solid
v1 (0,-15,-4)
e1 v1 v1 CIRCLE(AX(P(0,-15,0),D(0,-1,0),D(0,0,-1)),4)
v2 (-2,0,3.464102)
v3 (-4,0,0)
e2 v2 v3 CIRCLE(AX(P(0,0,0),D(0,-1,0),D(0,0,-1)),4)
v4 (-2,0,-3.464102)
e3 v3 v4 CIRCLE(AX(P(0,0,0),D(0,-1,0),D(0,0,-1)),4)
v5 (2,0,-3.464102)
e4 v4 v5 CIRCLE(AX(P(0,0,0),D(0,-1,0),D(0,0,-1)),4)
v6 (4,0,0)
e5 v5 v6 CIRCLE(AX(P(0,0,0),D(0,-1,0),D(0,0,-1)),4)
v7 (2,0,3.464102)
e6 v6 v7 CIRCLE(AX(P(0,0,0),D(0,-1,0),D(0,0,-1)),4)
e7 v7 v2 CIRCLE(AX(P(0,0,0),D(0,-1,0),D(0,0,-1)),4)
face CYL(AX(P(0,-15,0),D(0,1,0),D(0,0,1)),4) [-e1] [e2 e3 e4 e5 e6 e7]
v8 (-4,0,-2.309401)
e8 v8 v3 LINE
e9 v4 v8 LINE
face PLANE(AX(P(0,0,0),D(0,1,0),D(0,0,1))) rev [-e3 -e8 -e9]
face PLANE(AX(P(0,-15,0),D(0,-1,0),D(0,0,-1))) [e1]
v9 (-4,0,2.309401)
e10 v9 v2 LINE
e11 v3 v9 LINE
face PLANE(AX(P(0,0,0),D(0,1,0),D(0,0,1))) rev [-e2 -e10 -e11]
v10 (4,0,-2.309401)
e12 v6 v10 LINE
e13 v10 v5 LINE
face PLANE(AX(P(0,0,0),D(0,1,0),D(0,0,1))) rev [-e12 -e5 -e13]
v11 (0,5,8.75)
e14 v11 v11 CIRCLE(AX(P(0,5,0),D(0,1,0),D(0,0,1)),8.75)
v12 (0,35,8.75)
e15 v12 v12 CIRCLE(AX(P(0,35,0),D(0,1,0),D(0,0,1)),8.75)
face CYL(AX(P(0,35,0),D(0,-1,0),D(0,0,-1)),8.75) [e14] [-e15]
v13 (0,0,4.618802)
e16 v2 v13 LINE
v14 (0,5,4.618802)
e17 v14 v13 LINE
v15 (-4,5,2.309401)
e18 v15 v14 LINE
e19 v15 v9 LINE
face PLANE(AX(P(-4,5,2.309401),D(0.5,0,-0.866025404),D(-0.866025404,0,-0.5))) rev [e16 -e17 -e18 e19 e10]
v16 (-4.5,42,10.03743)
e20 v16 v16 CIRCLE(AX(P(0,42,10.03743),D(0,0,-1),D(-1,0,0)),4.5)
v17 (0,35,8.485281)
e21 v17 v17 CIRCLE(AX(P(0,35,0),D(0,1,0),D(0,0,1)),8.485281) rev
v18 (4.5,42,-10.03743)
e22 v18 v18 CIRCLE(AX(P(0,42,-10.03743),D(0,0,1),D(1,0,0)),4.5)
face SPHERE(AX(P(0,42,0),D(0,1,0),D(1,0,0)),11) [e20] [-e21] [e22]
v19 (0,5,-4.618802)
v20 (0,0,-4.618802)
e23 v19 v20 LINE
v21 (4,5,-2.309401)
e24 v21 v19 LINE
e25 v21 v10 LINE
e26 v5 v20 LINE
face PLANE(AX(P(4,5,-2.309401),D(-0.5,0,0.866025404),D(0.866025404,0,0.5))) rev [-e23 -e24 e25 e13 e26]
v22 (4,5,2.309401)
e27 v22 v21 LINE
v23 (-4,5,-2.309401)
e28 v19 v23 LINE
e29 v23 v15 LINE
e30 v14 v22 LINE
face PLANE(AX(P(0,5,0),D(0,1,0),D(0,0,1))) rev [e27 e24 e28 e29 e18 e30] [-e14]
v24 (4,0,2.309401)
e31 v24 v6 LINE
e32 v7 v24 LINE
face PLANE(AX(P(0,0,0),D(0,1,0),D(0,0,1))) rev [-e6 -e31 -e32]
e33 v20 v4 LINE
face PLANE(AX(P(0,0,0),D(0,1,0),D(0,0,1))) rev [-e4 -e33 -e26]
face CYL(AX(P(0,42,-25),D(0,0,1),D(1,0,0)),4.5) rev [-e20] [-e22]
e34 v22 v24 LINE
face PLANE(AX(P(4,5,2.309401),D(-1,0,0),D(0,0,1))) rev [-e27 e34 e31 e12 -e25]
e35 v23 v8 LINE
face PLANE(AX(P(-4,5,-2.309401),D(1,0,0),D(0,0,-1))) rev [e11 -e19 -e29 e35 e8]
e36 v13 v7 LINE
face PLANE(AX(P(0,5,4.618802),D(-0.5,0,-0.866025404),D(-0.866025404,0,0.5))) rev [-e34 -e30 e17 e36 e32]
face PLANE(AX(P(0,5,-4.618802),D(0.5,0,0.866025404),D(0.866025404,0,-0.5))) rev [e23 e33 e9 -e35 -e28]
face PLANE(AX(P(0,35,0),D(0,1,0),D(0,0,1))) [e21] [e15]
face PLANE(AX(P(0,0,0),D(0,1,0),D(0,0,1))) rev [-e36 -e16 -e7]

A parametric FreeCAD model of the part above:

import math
import FreeCAD as App
import Part
import Sketcher
Q = App.Units.Quantity

doc = App.newDocument("Part")
body = doc.addObject("PartDesign::Body", "Body")

# Sketch on XZ plane
sketch1 = body.newObject("Sketcher::SketchObject", "Sketch")
sketch1.AttachmentSupport = (doc.getObject("XZ_Plane"), [""])
sketch1.MapMode = "FlatFace"
sketch1.addGeometry(Part.LineSegment(App.Vector(0, -4.6, 0), App.Vector(-4, -2.3, 0)), False)
sketch1.addGeometry(Part.LineSegment(App.Vector(-4, -2.3, 0), App.Vector(-4, 2.3, 0)), False)
sketch1.addGeometry(Part.LineSegment(App.Vector(-4, 2.3, 0), App.Vector(0, 4.6, 0)), False)
sketch1.addGeometry(Part.LineSegment(App.Vector(0, 4.6, 0), App.Vector(4, 2.3, 0)), False)
sketch1.addGeometry(Part.LineSegment(App.Vector(4, 2.3, 0), App.Vector(4, -2.3, 0)), False)
sketch1.addGeometry(Part.LineSegment(App.Vector(4, -2.3, 0), App.Vector(0, -4.6, 0)), False)
sketch1.addConstraint(Sketcher.Constraint("Coincident", 0, 2, 1, 1))
sketch1.addConstraint(Sketcher.Constraint("Coincident", 1, 2, 2, 1))
sketch1.addConstraint(Sketcher.Constraint("Coincident", 2, 2, 3, 1))
sketch1.addConstraint(Sketcher.Constraint("Coincident", 3, 2, 4, 1))
sketch1.addConstraint(Sketcher.Constraint("Coincident", 4, 2, 5, 1))
sketch1.addConstraint(Sketcher.Constraint("Coincident", 5, 2, 0, 1))
sketch1.addConstraint(Sketcher.Constraint("Vertical", 1))
sketch1.addConstraint(Sketcher.Constraint("Vertical", 4))
sketch1.addConstraint(Sketcher.Constraint("Symmetric", 0, 2, 3, 2, -1, 1))
sketch1.addConstraint(Sketcher.Constraint("Symmetric", 2, 2, 5, 2, -1, 1))
sketch1.addConstraint(Sketcher.Constraint("PointOnObject", 2, 2, -2))
sketch1.addConstraint(Sketcher.Constraint("Parallel", 2, 5))
sketch1.addConstraint(Sketcher.Constraint("Horizontal", 1, 2, 3, 2))
sketch1.addConstraint(Sketcher.Constraint("Angle", 0, Q("150 deg")))
sketch1.addConstraint(Sketcher.Constraint("DistanceX", 0, 2, -1, 1, 4.0))
sketch1.addConstraint(Sketcher.Constraint("DistanceY", 0, 2, -1, 1, 2.309401))
pad1 = body.newObject("PartDesign::Pad", "Pad")
pad1.Profile = sketch1
pad1.Length = 5
pad1.Reversed = True

# Sketch on XZ plane
sketch2 = body.newObject("Sketcher::SketchObject", "Sketch001")
sketch2.AttachmentSupport = (doc.getObject("XZ_Plane"), [""])
sketch2.MapMode = "FlatFace"
sketch2.AttachmentOffset = App.Placement(App.Vector(0, 0, -5), App.Rotation())
sketch2.addGeometry(Part.Circle(App.Vector(0, 0, 0), App.Vector(0, 0, 1), 9), False)
sketch2.addConstraint(Sketcher.Constraint("Coincident", 0, 3, -1, 1))
sketch2.addConstraint(Sketcher.Constraint("Diameter", 0, 17.5))
pad2 = body.newObject("PartDesign::Pad", "Pad001")
pad2.Profile = sketch2
pad2.Length = 30
pad2.Reversed = True

# Sketch on XY plane
sketch3 = body.newObject("Sketcher::SketchObject", "Sketch002")
sketch3.AttachmentSupport = (doc.getObject("XY_Plane"), [""])
sketch3.MapMode = "FlatFace"
sketch3.addGeometry(Part.ArcOfCircle(Part.Circle(App.Vector(0, 42, 0), App.Vector(0, 0, 1), 11), math.radians(-90), math.radians(90)), False)
sketch3.addGeometry(Part.LineSegment(App.Vector(0, 53, 0), App.Vector(0, 31, 0)), False)
sketch3.addConstraint(Sketcher.Constraint("Coincident", 0, 1, 1, 2))
sketch3.addConstraint(Sketcher.Constraint("Coincident", 1, 1, 0, 2))
sketch3.addConstraint(Sketcher.Constraint("Vertical", 1))
sketch3.addConstraint(Sketcher.Constraint("PointOnObject", 0, 3, -2))
sketch3.addConstraint(Sketcher.Constraint("PointOnObject", 0, 1, -2))
sketch3.addConstraint(Sketcher.Constraint("Radius", 0, 11.0))
sketch3.addConstraint(Sketcher.Constraint("DistanceY", -1, 1, 0, 3, 42.0))
revolution = body.newObject("PartDesign::Revolution", "Revolution")
revolution.Profile = sketch3
revolution.ReferenceAxis = (sketch3, ["V_Axis"])
revolution.Angle = 360

# Sketch on XY plane
sketch4 = body.newObject("Sketcher::SketchObject", "Sketch003")
sketch4.AttachmentSupport = (doc.getObject("XY_Plane"), [""])
sketch4.MapMode = "FlatFace"
sketch4.addGeometry(Part.Circle(App.Vector(0, 42, 0), App.Vector(0, 0, 1), 4.5), False)
sketch4.addConstraint(Sketcher.Constraint("PointOnObject", 0, 3, -2))
sketch4.addConstraint(Sketcher.Constraint("Diameter", 0, 9.0))
sketch4.addConstraint(Sketcher.Constraint("DistanceY", -1, 1, 0, 3, 42.0))
pocket1 = body.newObject("PartDesign::Pocket", "Pocket")
pocket1.Profile = sketch4
pocket1.Length = 50
pocket1.Midplane = True

# Sketch on XZ plane
sketch5 = body.newObject("Sketcher::SketchObject", "Sketch004")
sketch5.AttachmentSupport = (doc.getObject("XZ_Plane"), [""])
sketch5.MapMode = "FlatFace"
sketch5.addGeometry(Part.Circle(App.Vector(0, 0, 0), App.Vector(0, 0, 1), 4), False)
sketch5.addConstraint(Sketcher.Constraint("Coincident", 0, 3, -1, 1))
sketch5.addConstraint(Sketcher.Constraint("Diameter", 0, 8.0))
pad3 = body.newObject("PartDesign::Pad", "Pad002")
pad3.Profile = sketch5
pad3.Length = 15

doc.recompute()
